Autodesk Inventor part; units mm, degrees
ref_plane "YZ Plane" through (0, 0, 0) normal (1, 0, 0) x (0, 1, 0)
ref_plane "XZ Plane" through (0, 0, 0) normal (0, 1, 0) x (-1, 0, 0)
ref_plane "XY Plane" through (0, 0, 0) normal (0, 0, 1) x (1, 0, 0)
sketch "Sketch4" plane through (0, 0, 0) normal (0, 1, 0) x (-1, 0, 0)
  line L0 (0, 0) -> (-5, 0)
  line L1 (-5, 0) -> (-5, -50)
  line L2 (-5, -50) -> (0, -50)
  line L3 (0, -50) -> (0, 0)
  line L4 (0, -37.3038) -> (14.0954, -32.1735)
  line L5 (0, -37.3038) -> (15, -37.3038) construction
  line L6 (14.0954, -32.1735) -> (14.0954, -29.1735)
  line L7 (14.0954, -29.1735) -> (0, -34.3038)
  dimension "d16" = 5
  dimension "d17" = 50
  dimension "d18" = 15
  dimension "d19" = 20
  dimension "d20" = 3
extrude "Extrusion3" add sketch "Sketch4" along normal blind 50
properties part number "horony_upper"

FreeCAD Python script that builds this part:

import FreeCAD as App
import Part
import Sketcher

V = App.Vector
Q = App.Units.Quantity


def add_polygon(sketch, points):
    """Adds a closed chain of lines whose ends are joined by coincident constraints."""
    first, n = sketch.GeometryCount, len(points)
    for a, b in zip(points, points[1:] + points[:1]):
        sketch.addGeometry(Part.LineSegment(App.Vector(*a, 0), App.Vector(*b, 0)), False)
    for i in range(n):
        sketch.addConstraint(Sketcher.Constraint("Coincident", first + i, 2, first + (i + 1) % n, 1))

doc = App.newDocument("Part")
body = doc.addObject("PartDesign::Body", "Body")

sketch1 = doc.addObject("Sketcher::SketchObject", "Sketch")
body.addObject(sketch1)
sketch1.AttachmentSupport = (doc.XZ_Plane, [""])
sketch1.MapMode = "FlatFace"
add_polygon(sketch1, [(0, -34.3038), (0, 0), (5, 0), (5, -50), (0, -50), (0, -37.3038), (-14.0954, -32.1735), (-14.0954, -29.1735)])
sketch1.addConstraint([
    Sketcher.Constraint("Vertical", 0),
    Sketcher.Constraint("Horizontal", 1),
    Sketcher.Constraint("Vertical", 2),
    Sketcher.Constraint("Horizontal", 3),
    Sketcher.Constraint("Vertical", 4),
    Sketcher.Constraint("Vertical", 6),
    Sketcher.Constraint("Coincident", 0, 2, -1, 1),
    Sketcher.Constraint("PointOnObject", 3, 2, -2),
    Sketcher.Constraint("Parallel", 5, 7),
    Sketcher.Constraint("DistanceX", 1, 1, 1, 2, Q("5 mm")),
    Sketcher.Constraint("DistanceY", 2, 2, 2, 1, Q("50 mm")),
    Sketcher.Constraint("DistanceY", 6, 1, 6, 2, Q("3 mm")),
    Sketcher.Constraint("Angle", 7, Q("-20 deg")),
    Sketcher.Constraint("Distance", 5, Q("15 mm")),
    Sketcher.Constraint("DistanceY", 0, 1, 0, 2, Q("34.3038 mm")),
])
pad1 = doc.addObject("PartDesign::Pad", "Pad")
body.addObject(pad1)
pad1.Profile = sketch1
pad1.Length = 50
pad1.Reversed = True

doc.recompute()
